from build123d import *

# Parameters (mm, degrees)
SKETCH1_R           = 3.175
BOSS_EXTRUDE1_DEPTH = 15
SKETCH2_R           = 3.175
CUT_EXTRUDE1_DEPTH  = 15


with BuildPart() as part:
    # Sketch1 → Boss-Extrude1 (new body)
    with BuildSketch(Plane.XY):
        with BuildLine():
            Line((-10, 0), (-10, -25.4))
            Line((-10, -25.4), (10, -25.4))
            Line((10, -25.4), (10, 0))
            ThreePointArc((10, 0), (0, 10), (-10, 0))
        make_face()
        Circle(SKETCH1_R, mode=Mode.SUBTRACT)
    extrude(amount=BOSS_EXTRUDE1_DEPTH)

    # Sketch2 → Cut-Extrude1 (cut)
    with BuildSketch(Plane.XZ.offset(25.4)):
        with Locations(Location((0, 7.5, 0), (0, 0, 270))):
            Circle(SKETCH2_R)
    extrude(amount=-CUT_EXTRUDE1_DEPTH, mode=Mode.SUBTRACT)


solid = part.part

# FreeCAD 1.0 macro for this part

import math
import FreeCAD as App
import Part
import Sketcher

V = App.Vector

doc = App.newDocument("Part")
body = doc.addObject("PartDesign::Body", "Body")

# Sketch on XY plane
sketch1 = body.newObject("Sketcher::SketchObject", "Sketch")
sketch1.AttachmentSupport = (doc.getObject("XY_Plane"), [""])
sketch1.MapMode = "FlatFace"
sketch1.addGeometry(Part.LineSegment(V(-10, 0, 0), V(-10, -25.4, 0)), False)
sketch1.addGeometry(Part.LineSegment(V(-10, -25.4, 0), V(10, -25.4, 0)), False)
sketch1.addGeometry(Part.LineSegment(V(10, -25.4, 0), V(10, 0, 0)), False)
sketch1.addGeometry(Part.ArcOfCircle(Part.Circle(V(0, 0, 0), V(0, 0, 1), 10), math.radians(0), math.radians(180)), False)
sketch1.addGeometry(Part.Circle(V(0, 0, 0), V(0, 0, 1), 3.2), False)
sketch1.addConstraint(Sketcher.Constraint("Coincident", 0, 2, 1, 1))
sketch1.addConstraint(Sketcher.Constraint("Coincident", 1, 2, 2, 1))
sketch1.addConstraint(Sketcher.Constraint("Tangent", 2, 2, 3, 1))
sketch1.addConstraint(Sketcher.Constraint("Tangent", 3, 2, 0, 1))
sketch1.addConstraint(Sketcher.Constraint("Vertical", 0))
sketch1.addConstraint(Sketcher.Constraint("Horizontal", 1))
sketch1.addConstraint(Sketcher.Constraint("Vertical", 2))
sketch1.addConstraint(Sketcher.Constraint("Coincident", 3, 3, -1, 1))
sketch1.addConstraint(Sketcher.Constraint("Coincident", 4, 3, -1, 1))
sketch1.addConstraint(Sketcher.Constraint("Radius", 3, 10.0))
sketch1.addConstraint(Sketcher.Constraint("Diameter", 4, 6.35))
sketch1.addConstraint(Sketcher.Constraint("DistanceY", 0, 2, 0, 1, 25.4))
pad1 = body.newObject("PartDesign::Pad", "Pad")
pad1.Profile = sketch1
pad1.Length = 15

# Sketch on XZ plane
sketch2 = body.newObject("Sketcher::SketchObject", "Sketch001")
sketch2.AttachmentSupport = (doc.getObject("XZ_Plane"), [""])
sketch2.MapMode = "FlatFace"
sketch2.AttachmentOffset = App.Placement(V(0, 0, 25.4), App.Rotation())
sketch2.addGeometry(Part.Circle(V(0, 7.5, 0), V(0, 0, 1), 3.2), False)
sketch2.addConstraint(Sketcher.Constraint("PointOnObject", 0, 3, -2))
sketch2.addConstraint(Sketcher.Constraint("Diameter", 0, 6.35))
sketch2.addConstraint(Sketcher.Constraint("DistanceY", -1, 1, 0, 3, 7.5))
pocket1 = body.newObject("PartDesign::Pocket", "Pocket")
pocket1.Profile = sketch2
pocket1.Length = 15

doc.recompute()
